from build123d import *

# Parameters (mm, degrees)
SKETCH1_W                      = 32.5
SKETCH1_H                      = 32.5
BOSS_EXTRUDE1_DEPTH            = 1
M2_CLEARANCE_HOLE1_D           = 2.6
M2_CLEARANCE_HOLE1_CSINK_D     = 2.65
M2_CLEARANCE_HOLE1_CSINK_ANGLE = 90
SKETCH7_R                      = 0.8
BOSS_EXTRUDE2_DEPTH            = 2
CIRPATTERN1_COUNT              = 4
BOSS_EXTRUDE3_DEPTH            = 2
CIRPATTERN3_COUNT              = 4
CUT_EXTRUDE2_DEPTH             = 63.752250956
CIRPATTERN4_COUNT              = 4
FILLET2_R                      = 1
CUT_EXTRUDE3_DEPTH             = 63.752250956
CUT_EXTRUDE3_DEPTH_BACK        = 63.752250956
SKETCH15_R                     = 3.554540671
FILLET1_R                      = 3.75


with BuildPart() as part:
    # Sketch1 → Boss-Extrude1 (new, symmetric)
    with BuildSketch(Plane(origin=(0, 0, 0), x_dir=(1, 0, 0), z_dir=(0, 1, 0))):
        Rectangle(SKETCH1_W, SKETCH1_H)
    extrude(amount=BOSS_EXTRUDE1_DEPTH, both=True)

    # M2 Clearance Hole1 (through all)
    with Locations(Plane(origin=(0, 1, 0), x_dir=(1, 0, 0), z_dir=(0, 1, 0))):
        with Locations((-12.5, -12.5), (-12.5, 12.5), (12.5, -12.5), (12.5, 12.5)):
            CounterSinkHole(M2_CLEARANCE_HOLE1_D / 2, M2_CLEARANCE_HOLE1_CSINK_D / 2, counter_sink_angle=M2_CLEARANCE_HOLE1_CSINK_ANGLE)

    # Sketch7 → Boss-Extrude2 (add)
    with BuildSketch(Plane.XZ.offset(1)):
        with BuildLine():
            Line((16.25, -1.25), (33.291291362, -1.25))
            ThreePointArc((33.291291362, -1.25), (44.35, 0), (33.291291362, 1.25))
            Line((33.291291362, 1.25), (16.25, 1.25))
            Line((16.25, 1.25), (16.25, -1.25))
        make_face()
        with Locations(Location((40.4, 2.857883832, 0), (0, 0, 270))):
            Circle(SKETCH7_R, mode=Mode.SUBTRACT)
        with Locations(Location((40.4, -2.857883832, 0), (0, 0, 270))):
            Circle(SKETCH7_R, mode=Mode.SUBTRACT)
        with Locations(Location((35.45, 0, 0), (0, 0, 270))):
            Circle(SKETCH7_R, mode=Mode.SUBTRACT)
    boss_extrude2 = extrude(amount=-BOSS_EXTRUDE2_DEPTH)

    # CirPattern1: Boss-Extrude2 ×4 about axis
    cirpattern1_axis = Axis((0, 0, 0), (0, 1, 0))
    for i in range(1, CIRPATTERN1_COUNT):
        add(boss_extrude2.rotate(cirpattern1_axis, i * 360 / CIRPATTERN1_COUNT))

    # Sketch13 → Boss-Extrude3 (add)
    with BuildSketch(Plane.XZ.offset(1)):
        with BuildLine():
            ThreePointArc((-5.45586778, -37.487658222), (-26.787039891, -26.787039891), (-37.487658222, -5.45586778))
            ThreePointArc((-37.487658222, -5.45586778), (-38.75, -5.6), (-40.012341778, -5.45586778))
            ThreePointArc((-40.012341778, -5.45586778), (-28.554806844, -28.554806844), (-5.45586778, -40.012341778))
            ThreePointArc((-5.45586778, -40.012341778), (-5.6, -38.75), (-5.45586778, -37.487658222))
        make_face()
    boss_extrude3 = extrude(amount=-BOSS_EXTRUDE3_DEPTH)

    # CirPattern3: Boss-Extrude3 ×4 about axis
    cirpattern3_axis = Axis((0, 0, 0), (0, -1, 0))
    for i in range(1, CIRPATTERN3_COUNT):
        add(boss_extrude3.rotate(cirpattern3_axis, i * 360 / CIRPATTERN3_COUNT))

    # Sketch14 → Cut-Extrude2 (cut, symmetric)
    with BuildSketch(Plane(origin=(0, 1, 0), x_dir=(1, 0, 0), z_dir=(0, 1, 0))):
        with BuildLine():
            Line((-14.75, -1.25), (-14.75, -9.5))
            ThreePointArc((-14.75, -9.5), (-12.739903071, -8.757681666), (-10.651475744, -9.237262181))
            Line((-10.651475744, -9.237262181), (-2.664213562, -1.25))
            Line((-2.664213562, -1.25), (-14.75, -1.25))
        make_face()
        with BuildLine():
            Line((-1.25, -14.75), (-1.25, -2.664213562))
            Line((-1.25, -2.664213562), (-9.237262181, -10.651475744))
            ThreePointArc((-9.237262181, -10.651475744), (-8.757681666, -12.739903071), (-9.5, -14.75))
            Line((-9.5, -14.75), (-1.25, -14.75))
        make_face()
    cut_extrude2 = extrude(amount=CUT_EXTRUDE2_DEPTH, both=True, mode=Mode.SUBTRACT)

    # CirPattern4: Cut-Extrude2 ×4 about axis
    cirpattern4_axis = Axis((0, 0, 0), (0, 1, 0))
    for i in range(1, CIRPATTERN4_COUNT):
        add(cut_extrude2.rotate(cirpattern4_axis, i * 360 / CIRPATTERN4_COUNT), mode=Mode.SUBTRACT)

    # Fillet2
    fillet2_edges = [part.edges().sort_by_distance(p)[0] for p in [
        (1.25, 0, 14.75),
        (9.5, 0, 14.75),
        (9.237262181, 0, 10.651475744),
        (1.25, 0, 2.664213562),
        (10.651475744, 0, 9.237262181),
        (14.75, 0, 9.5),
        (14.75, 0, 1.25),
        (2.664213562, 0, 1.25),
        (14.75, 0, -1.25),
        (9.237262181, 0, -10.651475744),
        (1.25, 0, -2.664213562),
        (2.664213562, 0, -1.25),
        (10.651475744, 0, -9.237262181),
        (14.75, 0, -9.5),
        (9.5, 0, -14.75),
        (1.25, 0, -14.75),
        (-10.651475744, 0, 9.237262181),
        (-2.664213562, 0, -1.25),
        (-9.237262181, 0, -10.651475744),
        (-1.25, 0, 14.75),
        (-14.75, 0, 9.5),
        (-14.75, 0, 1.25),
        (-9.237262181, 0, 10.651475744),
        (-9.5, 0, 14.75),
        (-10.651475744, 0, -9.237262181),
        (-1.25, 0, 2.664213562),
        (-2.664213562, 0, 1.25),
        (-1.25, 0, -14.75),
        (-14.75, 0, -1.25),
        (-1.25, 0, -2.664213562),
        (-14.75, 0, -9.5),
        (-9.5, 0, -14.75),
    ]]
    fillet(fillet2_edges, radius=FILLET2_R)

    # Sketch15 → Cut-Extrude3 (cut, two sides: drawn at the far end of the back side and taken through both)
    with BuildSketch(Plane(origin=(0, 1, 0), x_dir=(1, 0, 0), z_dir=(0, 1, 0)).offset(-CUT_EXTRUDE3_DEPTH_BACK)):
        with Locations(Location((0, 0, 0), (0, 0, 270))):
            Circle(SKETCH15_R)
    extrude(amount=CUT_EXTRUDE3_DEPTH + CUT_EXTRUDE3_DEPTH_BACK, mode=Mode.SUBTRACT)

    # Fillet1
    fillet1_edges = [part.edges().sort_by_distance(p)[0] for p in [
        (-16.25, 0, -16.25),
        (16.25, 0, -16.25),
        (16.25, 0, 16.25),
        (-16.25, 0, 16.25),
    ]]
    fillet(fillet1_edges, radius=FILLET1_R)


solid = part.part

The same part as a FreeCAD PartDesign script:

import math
import FreeCAD as App
import Part
import Sketcher
from FreeCAD import Vector
Q = App.Units.Quantity


def edges_at(feature, points):
    """Names of the edges that pass closest to the given points."""
    edges = feature.Shape.Edges
    near = lambda p: min(range(len(edges)), key=lambda i: edges[i].distToShape(Part.Vertex(*p))[0])
    return sorted({f"Edge{near(p) + 1}" for p in points})


def add_polygon(sketch, points):
    """Adds a closed chain of lines whose ends are joined by coincident constraints."""
    first, n = sketch.GeometryCount, len(points)
    for a, b in zip(points, points[1:] + points[:1]):
        sketch.addGeometry(Part.LineSegment(App.Vector(*a, 0), App.Vector(*b, 0)), False)
    for i in range(n):
        sketch.addConstraint(Sketcher.Constraint("Coincident", first + i, 2, first + (i + 1) % n, 1))

doc = App.newDocument("Part")
body = doc.addObject("PartDesign::Body", "Body")

# Sketch on XZ plane
sketch1 = body.newObject("Sketcher::SketchObject", "Sketch")
sketch1.AttachmentSupport = (doc.getObject("XZ_Plane"), [""])
sketch1.MapMode = "FlatFace"
add_polygon(sketch1, [(-16, -16), (-16, 16), (16, 16), (16, -16)])  # lines 0-3
sketch1.addConstraint([
    Sketcher.Constraint("Vertical", 0),
    Sketcher.Constraint("Horizontal", 1),
    Sketcher.Constraint("Vertical", 2),
    Sketcher.Constraint("Horizontal", 3),
    Sketcher.Constraint("Symmetric", 0, 2, 2, 2, -1, 1),
    Sketcher.Constraint("Equal", 3, 0),
    Sketcher.Constraint("DistanceX", 1, 1, 1, 2, 32.5),
])
pad1 = body.newObject("PartDesign::Pad", "Pad")
pad1.Profile = sketch1
pad1.Length = 2
pad1.Midplane = True

# Sketch on XZ plane
sketch2 = body.newObject("Sketcher::SketchObject", "Sketch001")
sketch2.AttachmentSupport = (doc.getObject("XZ_Plane"), [""])
sketch2.MapMode = "FlatFace"
sketch2.AttachmentOffset = App.Placement(Vector(0, 0, -1), App.Rotation())
sketch2.addGeometry([
    Part.Circle(Vector(-12.5, 12.5, 0), Vector(0, 0, 1), 1.3),
    Part.Circle(Vector(-12.5, -12.5, 0), Vector(0, 0, 1), 1.3),
    Part.Circle(Vector(12.5, 12.5, 0), Vector(0, 0, 1), 1.3),
    Part.Circle(Vector(12.5, -12.5, 0), Vector(0, 0, 1), 1.3),
], False)
sketch2.addConstraint([
    Sketcher.Constraint("Equal", 0, 1),
    Sketcher.Constraint("Equal", 1, 2),
    Sketcher.Constraint("Equal", 2, 3),
    Sketcher.Constraint("Symmetric", 1, 3, 2, 3, -1, 1),
    Sketcher.Constraint("Symmetric", 0, 3, 3, 3, -1, 1),
    Sketcher.Constraint("Symmetric", 0, 3, 2, 3, -2),
    Sketcher.Constraint("Diameter", 0, 2.6),
    Sketcher.Constraint("DistanceY", 1, 3, 0, 3, 25.0),
    Sketcher.Constraint("DistanceX", 0, 3, 2, 3, 25.0),
])
doc.recompute()
hole = body.newObject("PartDesign::Hole", "Hole")
hole.Profile = sketch2
hole.ThreadType = "None"
hole.Diameter = 2.6
hole.DepthType = "ThroughAll"
hole.HoleCutType = "Countersink"
hole.HoleCutDiameter = 2.65
hole.HoleCutCountersinkAngle = 90
hole.Reversed = True

# Sketch on XZ plane
sketch3 = body.newObject("Sketcher::SketchObject", "Sketch002")
sketch3.AttachmentSupport = (doc.getObject("XZ_Plane"), [""])
sketch3.MapMode = "FlatFace"
sketch3.AttachmentOffset = App.Placement(Vector(0, 0, 1), App.Rotation())
sketch3.addGeometry([
    Part.LineSegment(Vector(16.2, -1.2, 0), Vector(33.3, -1.2, 0)),  # 0
    Part.ArcOfCircle(Part.Circle(Vector(38.8, 0, 0), Vector(0, 0, 1), 5.6), math.radians(-167), math.radians(167)),  # 1
    Part.LineSegment(Vector(33.3, 1.2, 0), Vector(16.2, 1.2, 0)),  # 2
    Part.LineSegment(Vector(16.2, 1.2, 0), Vector(16.2, -1.2, 0)),  # 3
    Part.Circle(Vector(40.4, -2.9, 0), Vector(0, 0, 1), 0.8),  # 4
    Part.Circle(Vector(35.5, 0, 0), Vector(0, 0, 1), 0.8),  # 5
    Part.Circle(Vector(40.4, 2.9, 0), Vector(0, 0, 1), 0.8),  # 6
], False)
sketch3.addConstraint([
    Sketcher.Constraint("Coincident", 0, 2, 1, 1),
    Sketcher.Constraint("Coincident", 1, 2, 2, 1),
    Sketcher.Constraint("Coincident", 2, 2, 3, 1),
    Sketcher.Constraint("Coincident", 3, 2, 0, 1),
    Sketcher.Constraint("Horizontal", 0),
    Sketcher.Constraint("Horizontal", 2),
    Sketcher.Constraint("Vertical", 3),
    Sketcher.Constraint("Equal", 4, 5),
    Sketcher.Constraint("Equal", 5, 6),
    Sketcher.Constraint("Symmetric", 4, 3, 6, 3, -1),
    Sketcher.Constraint("Symmetric", 0, 2, 1, 2, -1),
    Sketcher.Constraint("PointOnObject", 5, 3, -1),
    Sketcher.Constraint("Diameter", 4, 1.6),
    Sketcher.Constraint("Radius", 1, 5.6),
    Sketcher.Constraint("DistanceY", 3, 2, 3, 1, 2.5),
    Sketcher.Constraint("DistanceX", -1, 1, 4, 3, 40.4),
    Sketcher.Constraint("DistanceX", 5, 3, 1, 3, 3.3),
    Sketcher.Constraint("DistanceX", 2, 2, 5, 3, 19.2),
    Sketcher.Constraint("DistanceX", -1, 1, 1, 3, 38.75),
    Sketcher.Constraint("DistanceY", 4, 3, -1, 1, 2.857884),
])
pad2 = body.newObject("PartDesign::Pad", "Pad001")
pad2.Profile = sketch3
pad2.Length = 2
pad2.Reversed = True
doc.recompute()

polarpattern = body.newObject("PartDesign::PolarPattern", "PolarPattern")
polarpattern.Originals = [pad2]
polarpattern.Axis = (doc.getObject("Y_Axis"), [""])
polarpattern.Angle = 360
polarpattern.Occurrences = 4
body.Tip = polarpattern

# Sketch on XZ plane
sketch4 = body.newObject("Sketcher::SketchObject", "Sketch003")
sketch4.AttachmentSupport = (doc.getObject("XZ_Plane"), [""])
sketch4.MapMode = "FlatFace"
sketch4.AttachmentOffset = App.Placement(Vector(0, 0, 1), App.Rotation())
sketch4.addGeometry([
    Part.ArcOfCircle(Part.Circle(Vector(0, 0, 0), Vector(0, 0, 1), 37.9), math.radians(-172), math.radians(-98)),
    Part.ArcOfCircle(Part.Circle(Vector(-38.8, 0, 0), Vector(0, 0, 1), 5.6), math.radians(-103), math.radians(-77)),
    Part.ArcOfCircle(Part.Circle(Vector(0, 0, 0), Vector(0, 0, 1), 40.4), math.radians(-172), math.radians(-98)),
    Part.ArcOfCircle(Part.Circle(Vector(0, -38.8, 0), Vector(0, 0, 1), 5.6), math.radians(167), math.radians(193)),
], False)
sketch4.addConstraint([
    Sketcher.Constraint("Coincident", 0, 1, 1, 2),
    Sketcher.Constraint("Coincident", 1, 1, 2, 1),
    Sketcher.Constraint("Coincident", 2, 2, 3, 2),
    Sketcher.Constraint("Coincident", 3, 1, 0, 2),
    Sketcher.Constraint("Coincident", 0, 3, -1, 1),
    Sketcher.Constraint("Coincident", 2, 3, -1, 1),
    Sketcher.Constraint("Equal", 1, 3),
    Sketcher.Constraint("PointOnObject", 1, 3, -1),
    Sketcher.Constraint("PointOnObject", 3, 3, -2),
    Sketcher.Constraint("Horizontal", 0, 1, 1, 1),
    Sketcher.Constraint("Vertical", 2, 2, 3, 1),
    Sketcher.Constraint("Radius", 1, 5.6),
    Sketcher.Constraint("DistanceX", 1, 3, -1, 1, 38.75),
    Sketcher.Constraint("Radius", 0, 37.882595),
])
pad3 = body.newObject("PartDesign::Pad", "Pad002")
pad3.Profile = sketch4
pad3.Length = 2
pad3.Reversed = True
doc.recompute()

polarpattern2 = body.newObject("PartDesign::PolarPattern", "PolarPattern001")
polarpattern2.Originals = [pad3]
polarpattern2.Axis = (doc.getObject("Y_Axis"), [""])
polarpattern2.Angle = 360
polarpattern2.Occurrences = 4
body.Tip = polarpattern2

# Sketch on XZ plane
sketch5 = body.newObject("Sketcher::SketchObject", "Sketch004")
sketch5.AttachmentSupport = (doc.getObject("XZ_Plane"), [""])
sketch5.MapMode = "FlatFace"
sketch5.AttachmentOffset = App.Placement(Vector(0, 0, -1), App.Rotation())
sketch5.addGeometry([
    Part.LineSegment(Vector(-14.8, 1.2, 0), Vector(-14.8, 9.5, 0)),  # 0
    Part.ArcOfCircle(Part.Circle(Vector(-12.5, 12.5, 0), Vector(0, 0, 1), 3.8), math.radians(-127), math.radians(-60)),  # 1
    Part.LineSegment(Vector(-10.7, 9.2, 0), Vector(-2.7, 1.2, 0)),  # 2
    Part.LineSegment(Vector(-2.7, 1.2, 0), Vector(-14.8, 1.2, 0)),  # 3
    Part.LineSegment(Vector(-1.2, 14.8, 0), Vector(-1.2, 2.7, 0)),  # 4
    Part.LineSegment(Vector(-1.2, 2.7, 0), Vector(-9.2, 10.7, 0)),  # 5
    Part.ArcOfCircle(Part.Circle(Vector(-12.5, 12.5, 0), Vector(0, 0, 1), 3.8), math.radians(-30), math.radians(37)),  # 6
    Part.LineSegment(Vector(-9.5, 14.8, 0), Vector(-1.2, 14.8, 0)),  # 7
], False)
sketch5.addConstraint([
    Sketcher.Constraint("Coincident", 0, 2, 1, 1),
    Sketcher.Constraint("Coincident", 1, 2, 2, 1),
    Sketcher.Constraint("Coincident", 2, 2, 3, 1),
    Sketcher.Constraint("Coincident", 3, 2, 0, 1),
    Sketcher.Constraint("Coincident", 4, 2, 5, 1),
    Sketcher.Constraint("Coincident", 5, 2, 6, 1),
    Sketcher.Constraint("Coincident", 6, 2, 7, 1),
    Sketcher.Constraint("Coincident", 7, 2, 4, 1),
    Sketcher.Constraint("Vertical", 0),
    Sketcher.Constraint("Horizontal", 3),
    Sketcher.Constraint("Vertical", 4),
    Sketcher.Constraint("Horizontal", 7),
    Sketcher.Constraint("Coincident", 6, 3, 1, 3),
    Sketcher.Constraint("Equal", 1, 6),
    Sketcher.Constraint("Parallel", 2, 5),
    Sketcher.Constraint("Equal", 7, 0),
    Sketcher.Constraint("Equal", 3, 4),
    Sketcher.Constraint("Equal", 2, 5),
    Sketcher.Constraint("Angle", 2, Q("-45 deg")),
    Sketcher.Constraint("Radius", 1, 3.75),
    Sketcher.Constraint("DistanceY", 0, 2, 6, 3, 3.0),
    Sketcher.Constraint("DistanceX", 7, 1, 7, 2, 8.25),
    Sketcher.Constraint("DistanceX", 1, 3, -1, 1, 12.5),
    Sketcher.Constraint("DistanceY", -1, 1, 1, 3, 12.5),
    Sketcher.Constraint("DistanceX", 3, 2, 3, 1, 12.085786),
])
pocket1 = body.newObject("PartDesign::Pocket", "Pocket")
pocket1.Profile = sketch5
pocket1.Length = 127.504502
pocket1.Midplane = True
doc.recompute()

polarpattern3 = body.newObject("PartDesign::PolarPattern", "PolarPattern002")
polarpattern3.Originals = [pocket1]
polarpattern3.Axis = (doc.getObject("Y_Axis"), [""])
polarpattern3.Angle = 360
polarpattern3.Occurrences = 4
body.Tip = polarpattern3
doc.recompute()

fillet = body.newObject("PartDesign::Fillet", "Fillet")
fillet.Base = (polarpattern3, edges_at(polarpattern3, [
    (1.25, 0, 14.75),
    (9.5, 0, 14.75),
    (9.237, 0, 10.651),
    (1.25, 0, 2.664),
    (10.651, 0, 9.237),
    (14.75, 0, 9.5),
    (14.75, 0, 1.25),
    (2.664, 0, 1.25),
    (14.75, 0, -1.25),
    (9.237, 0, -10.651),
    (1.25, 0, -2.664),
    (2.664, 0, -1.25),
    (10.651, 0, -9.237),
    (14.75, 0, -9.5),
    (9.5, 0, -14.75),
    (1.25, 0, -14.75),
    (-10.651, 0, 9.237),
    (-2.664, 0, -1.25),
    (-9.237, 0, -10.651),
    (-1.25, 0, 14.75),
    (-14.75, 0, 9.5),
    (-14.75, 0, 1.25),
    (-9.237, 0, 10.651),
    (-9.5, 0, 14.75),
    (-10.651, 0, -9.237),
    (-1.25, 0, 2.664),
    (-2.664, 0, 1.25),
    (-1.25, 0, -14.75),
    (-14.75, 0, -1.25),
    (-1.25, 0, -2.664),
    (-14.75, 0, -9.5),
    (-9.5, 0, -14.75),
]))
fillet.Radius = 1

# Sketch on XZ plane
sketch6 = body.newObject("Sketcher::SketchObject", "Sketch005")
sketch6.AttachmentSupport = (doc.getObject("XZ_Plane"), [""])
sketch6.MapMode = "FlatFace"
sketch6.AttachmentOffset = App.Placement(Vector(0, 0, -1), App.Rotation())
sketch6.addGeometry(Part.Circle(Vector(0, 0, 0), Vector(0, 0, 1), 3.6), False)
sketch6.addConstraint([
    Sketcher.Constraint("Coincident", 0, 3, -1, 1),
    Sketcher.Constraint("Diameter", 0, 7.109081),
])
pocket2 = body.newObject("PartDesign::Pocket", "Pocket001")
pocket2.Profile = sketch6
pocket2.Type = "ThroughAll"
pocket2.Midplane = True
doc.recompute()

fillet2 = body.newObject("PartDesign::Fillet", "Fillet001")
fillet2.Base = (pocket2, edges_at(pocket2, [
    (-16.25, 0, -16.25),
    (16.25, 0, -16.25),
    (16.25, 0, 16.25),
    (-16.25, 0, 16.25),
]))
fillet2.Radius = 3.75

doc.recompute()
